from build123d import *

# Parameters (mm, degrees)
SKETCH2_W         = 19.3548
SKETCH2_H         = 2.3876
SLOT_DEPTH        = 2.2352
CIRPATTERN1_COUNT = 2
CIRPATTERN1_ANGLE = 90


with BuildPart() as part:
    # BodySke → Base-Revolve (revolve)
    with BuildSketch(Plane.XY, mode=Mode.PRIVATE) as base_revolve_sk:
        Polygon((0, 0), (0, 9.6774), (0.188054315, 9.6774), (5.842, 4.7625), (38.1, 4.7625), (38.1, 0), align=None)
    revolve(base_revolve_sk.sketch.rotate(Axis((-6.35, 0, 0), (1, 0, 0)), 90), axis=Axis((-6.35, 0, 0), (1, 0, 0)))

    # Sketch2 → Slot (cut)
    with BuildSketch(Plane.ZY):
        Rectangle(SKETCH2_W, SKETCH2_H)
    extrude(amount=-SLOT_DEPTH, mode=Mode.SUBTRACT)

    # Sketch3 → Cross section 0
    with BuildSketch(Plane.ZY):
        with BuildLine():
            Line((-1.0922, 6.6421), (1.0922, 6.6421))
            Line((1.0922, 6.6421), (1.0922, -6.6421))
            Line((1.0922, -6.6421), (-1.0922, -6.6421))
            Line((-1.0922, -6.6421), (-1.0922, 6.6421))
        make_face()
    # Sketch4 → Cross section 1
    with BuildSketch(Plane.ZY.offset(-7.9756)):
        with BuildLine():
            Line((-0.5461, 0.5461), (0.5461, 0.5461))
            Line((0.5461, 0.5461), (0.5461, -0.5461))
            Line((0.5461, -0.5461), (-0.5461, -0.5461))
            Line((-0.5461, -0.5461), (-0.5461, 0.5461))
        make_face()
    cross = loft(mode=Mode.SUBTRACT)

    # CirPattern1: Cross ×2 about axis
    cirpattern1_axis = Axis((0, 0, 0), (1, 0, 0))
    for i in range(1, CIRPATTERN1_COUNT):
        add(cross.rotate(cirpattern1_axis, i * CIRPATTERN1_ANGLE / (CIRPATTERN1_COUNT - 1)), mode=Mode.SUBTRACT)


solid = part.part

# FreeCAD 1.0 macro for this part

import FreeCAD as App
import Part
import Sketcher
Q = App.Units.Quantity

doc = App.newDocument("Part")
params = doc.addObject("Spreadsheet::Sheet", "Params")
for row, (alias, value) in enumerate([
    ("sketch1_width", "1.5 in"),
    ("sketch1_width2", "1.27 in"),
    ("sketch1_height", "0.381 in"),
    ("sketch1_height2", "0.1875 in"),
    ("revolution_angle", "360 deg"),
    ("sketch2_width", "0.094 in"),
    ("sketch2_height", "0.762 in"),
    ("pocket1_length", "0.088 in"),
    ("sketch3_width", "0.523 in"),
    ("sketch3_height", "0.086 in"),
    ("sketch4_width", "0.043 in"),
], start=1):
    params.set(f"A{row}", alias)
    params.set(f"B{row}", "=" + value)
    params.setAlias(f"B{row}", alias)

body = doc.addObject("PartDesign::Body", "Body")

# Sketch on XY plane
sketch1 = doc.addObject("Sketcher::SketchObject", "Sketch")
body.addObject(sketch1)
sketch1.AttachmentSupport = (doc.XY_Plane, [""])
sketch1.MapMode = "FlatFace"
sketch1.addGeometry([
    Part.LineSegment(App.Vector(0, 9.68, 0), App.Vector(0, 0, 0)),  # 0
    Part.LineSegment(App.Vector(0, 0, 0), App.Vector(38.1, 0, 0)),  # 1
    Part.LineSegment(App.Vector(38.1, 0, 0), App.Vector(38.1, 4.76, 0)),  # 2
    Part.LineSegment(App.Vector(38.1, 4.76, 0), App.Vector(5.84, 4.76, 0)),  # 3
    Part.LineSegment(App.Vector(5.84, 4.76, 0), App.Vector(0.19, 9.68, 0)),  # 4
    Part.LineSegment(App.Vector(0.19, 9.68, 0), App.Vector(0, 9.68, 0)),  # 5
], False)
sketch1.addConstraint([
    Sketcher.Constraint("Coincident", 0, 2, 1, 1),
    Sketcher.Constraint("Coincident", 1, 2, 2, 1),
    Sketcher.Constraint("Coincident", 2, 2, 3, 1),
    Sketcher.Constraint("Coincident", 3, 2, 4, 1),
    Sketcher.Constraint("Coincident", 4, 2, 5, 1),
    Sketcher.Constraint("Coincident", 5, 2, 0, 1),
    Sketcher.Constraint("Vertical", 0),
    Sketcher.Constraint("Horizontal", 1),
    Sketcher.Constraint("Vertical", 2),
    Sketcher.Constraint("Horizontal", 3),
    Sketcher.Constraint("Horizontal", 5),
    Sketcher.Constraint("Coincident", 0, 2, -1, 1),
    Sketcher.Constraint("DistanceX", 1, 1, 1, 2, Q("1.5 in")),
    Sketcher.Constraint("Angle", 4, Q("139 deg")),
    Sketcher.Constraint("DistanceX", 3, 2, 3, 1, Q("1.27 in")),
    Sketcher.Constraint("DistanceY", 0, 2, 0, 1, Q("0.381 in")),
    Sketcher.Constraint("DistanceY", 2, 1, 2, 2, Q("0.1875 in")),
])
sketch1.setExpression("Constraints[12]", "Params.sketch1_width")
sketch1.setExpression("Constraints[14]", "Params.sketch1_width2")
sketch1.setExpression("Constraints[15]", "Params.sketch1_height")
sketch1.setExpression("Constraints[16]", "Params.sketch1_height2")
revolution = doc.addObject("PartDesign::Revolution", "Revolution")
body.addObject(revolution)
revolution.Profile = sketch1
revolution.ReferenceAxis = (sketch1, ["H_Axis"])
revolution.setExpression("Angle", "Params.revolution_angle")

# Sketch on YZ plane
sketch2 = doc.addObject("Sketcher::SketchObject", "Sketch001")
body.addObject(sketch2)
sketch2.AttachmentSupport = (doc.YZ_Plane, [""])
sketch2.MapMode = "FlatFace"
sketch2.addGeometry([
    Part.LineSegment(App.Vector(1.2, -9.7, 0), App.Vector(-1.2, -9.7, 0)),
    Part.LineSegment(App.Vector(-1.2, -9.7, 0), App.Vector(-1.2, 9.7, 0)),
    Part.LineSegment(App.Vector(-1.2, 9.7, 0), App.Vector(1.2, 9.7, 0)),
    Part.LineSegment(App.Vector(1.2, 9.7, 0), App.Vector(1.2, -9.7, 0)),
], False)
sketch2.addConstraint([
    Sketcher.Constraint("Coincident", 0, 2, 1, 1),
    Sketcher.Constraint("Coincident", 1, 2, 2, 1),
    Sketcher.Constraint("Coincident", 2, 2, 3, 1),
    Sketcher.Constraint("Coincident", 3, 2, 0, 1),
    Sketcher.Constraint("Horizontal", 0),
    Sketcher.Constraint("Vertical", 1),
    Sketcher.Constraint("Horizontal", 2),
    Sketcher.Constraint("Vertical", 3),
    Sketcher.Constraint("Symmetric", 0, 2, 2, 2, -1, 1),
    Sketcher.Constraint("DistanceX", 0, 2, 0, 1, Q("0.094 in")),
    Sketcher.Constraint("DistanceY", 1, 1, 1, 2, Q("0.762 in")),
])
sketch2.setExpression("Constraints[9]", "Params.sketch2_width")
sketch2.setExpression("Constraints[10]", "Params.sketch2_height")
pocket1 = doc.addObject("PartDesign::Pocket", "Pocket")
body.addObject(pocket1)
pocket1.Profile = sketch2
pocket1.setExpression("Length", "Params.pocket1_length")
pocket1.Reversed = True

# Sketch on YZ plane
sketch3 = doc.addObject("Sketcher::SketchObject", "Sketch002")
body.addObject(sketch3)
sketch3.AttachmentSupport = (doc.YZ_Plane, [""])
sketch3.MapMode = "FlatFace"
sketch3.addGeometry([
    Part.LineSegment(App.Vector(6.6, 1.1, 0), App.Vector(6.6, -1.1, 0)),
    Part.LineSegment(App.Vector(6.6, -1.1, 0), App.Vector(-6.6, -1.1, 0)),
    Part.LineSegment(App.Vector(-6.6, -1.1, 0), App.Vector(-6.6, 1.1, 0)),
    Part.LineSegment(App.Vector(-6.6, 1.1, 0), App.Vector(6.6, 1.1, 0)),
], False)
sketch3.addConstraint([
    Sketcher.Constraint("Coincident", 0, 2, 1, 1),
    Sketcher.Constraint("Coincident", 1, 2, 2, 1),
    Sketcher.Constraint("Coincident", 2, 2, 3, 1),
    Sketcher.Constraint("Coincident", 3, 2, 0, 1),
    Sketcher.Constraint("Vertical", 0),
    Sketcher.Constraint("Horizontal", 1),
    Sketcher.Constraint("Vertical", 2),
    Sketcher.Constraint("Horizontal", 3),
    Sketcher.Constraint("Symmetric", 0, 2, 2, 2, -1, 1),
    Sketcher.Constraint("DistanceX", 1, 2, 1, 1, Q("0.523 in")),
    Sketcher.Constraint("DistanceY", 0, 2, 0, 1, Q("0.086 in")),
])
sketch3.setExpression("Constraints[9]", "Params.sketch3_width")
sketch3.setExpression("Constraints[10]", "Params.sketch3_height")

# Sketch on YZ plane
sketch4 = doc.addObject("Sketcher::SketchObject", "Sketch003")
body.addObject(sketch4)
sketch4.AttachmentSupport = (doc.YZ_Plane, [""])
sketch4.MapMode = "FlatFace"
sketch4.AttachmentOffset = App.Placement(App.Vector(0, 0, 0.314 * 25.4), App.Rotation())
sketch4.addGeometry([
    Part.LineSegment(App.Vector(0.5, 0.5, 0), App.Vector(0.5, -0.5, 0)),
    Part.LineSegment(App.Vector(0.5, -0.5, 0), App.Vector(-0.5, -0.5, 0)),
    Part.LineSegment(App.Vector(-0.5, -0.5, 0), App.Vector(-0.5, 0.5, 0)),
    Part.LineSegment(App.Vector(-0.5, 0.5, 0), App.Vector(0.5, 0.5, 0)),
], False)
sketch4.addConstraint([
    Sketcher.Constraint("Coincident", 0, 2, 1, 1),
    Sketcher.Constraint("Coincident", 1, 2, 2, 1),
    Sketcher.Constraint("Coincident", 2, 2, 3, 1),
    Sketcher.Constraint("Coincident", 3, 2, 0, 1),
    Sketcher.Constraint("Vertical", 0),
    Sketcher.Constraint("Horizontal", 1),
    Sketcher.Constraint("Vertical", 2),
    Sketcher.Constraint("Horizontal", 3),
    Sketcher.Constraint("Symmetric", 0, 2, 2, 2, -1, 1),
    Sketcher.Constraint("Equal", 3, 0),
    Sketcher.Constraint("DistanceX", 1, 2, 1, 1, Q("0.043 in")),
])
sketch4.setExpression("Constraints[10]", "Params.sketch4_width")

subtractiveloft = doc.addObject("PartDesign::SubtractiveLoft", "SubtractiveLoft")
body.addObject(subtractiveloft)
subtractiveloft.Profile = sketch3
subtractiveloft.Sections = [sketch4]
doc.recompute()

polarpattern = doc.addObject("PartDesign::PolarPattern", "PolarPattern")
body.addObject(polarpattern)
polarpattern.Originals = [subtractiveloft]
polarpattern.Axis = (doc.X_Axis, [""])
polarpattern.Angle = 90
polarpattern.Occurrences = 2
body.Tip = polarpattern

doc.recompute()
